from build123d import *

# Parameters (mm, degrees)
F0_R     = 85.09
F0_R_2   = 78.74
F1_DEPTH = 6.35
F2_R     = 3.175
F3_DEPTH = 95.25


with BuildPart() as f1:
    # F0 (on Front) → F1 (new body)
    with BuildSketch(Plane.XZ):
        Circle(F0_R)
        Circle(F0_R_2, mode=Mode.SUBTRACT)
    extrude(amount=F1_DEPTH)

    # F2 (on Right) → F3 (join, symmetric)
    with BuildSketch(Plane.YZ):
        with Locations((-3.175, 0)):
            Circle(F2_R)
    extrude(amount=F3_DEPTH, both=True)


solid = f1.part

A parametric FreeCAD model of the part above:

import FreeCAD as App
import Part
import Sketcher

V = App.Vector
Q = App.Units.Quantity

doc = App.newDocument("Part")
body = doc.addObject("PartDesign::Body", "Body")

sketch1 = doc.addObject("Sketcher::SketchObject", "Sketch")
body.addObject(sketch1)
sketch1.AttachmentSupport = (doc.XZ_Plane, [""])
sketch1.MapMode = "FlatFace"
sketch1.addGeometry(Part.Circle(V(0, 0, 0), V(0, 0, 1), 85), False)
sketch1.addGeometry(Part.Circle(V(0, 0, 0), V(0, 0, 1), 79), False)
sketch1.addConstraint(Sketcher.Constraint("Coincident", 0, 3, -1, 1))
sketch1.addConstraint(Sketcher.Constraint("Coincident", 1, 3, -1, 1))
sketch1.addConstraint(Sketcher.Constraint("Diameter", 0, Q("6.7 in")))
sketch1.addConstraint(Sketcher.Constraint("Diameter", 1, Q("6.2 in")))
pad1 = doc.addObject("PartDesign::Pad", "Pad")
body.addObject(pad1)
pad1.Profile = sketch1
pad1.Length = Q("0.25 in")

sketch2 = doc.addObject("Sketcher::SketchObject", "Sketch001")
body.addObject(sketch2)
sketch2.AttachmentSupport = (doc.YZ_Plane, [""])
sketch2.MapMode = "FlatFace"
sketch2.addGeometry(Part.Circle(V(-3.2, 0, 0), V(0, 0, 1), 3.2), False)
sketch2.addConstraint(Sketcher.Constraint("PointOnObject", 0, 3, -1))
sketch2.addConstraint(Sketcher.Constraint("Diameter", 0, Q("0.25 in")))
sketch2.addConstraint(Sketcher.Constraint("DistanceX", 0, 3, -1, 1, Q("0.125 in")))
pad2 = doc.addObject("PartDesign::Pad", "Pad001")
body.addObject(pad2)
pad2.Profile = sketch2
pad2.Length = Q("7.5 in")
pad2.Midplane = True

doc.recompute()
